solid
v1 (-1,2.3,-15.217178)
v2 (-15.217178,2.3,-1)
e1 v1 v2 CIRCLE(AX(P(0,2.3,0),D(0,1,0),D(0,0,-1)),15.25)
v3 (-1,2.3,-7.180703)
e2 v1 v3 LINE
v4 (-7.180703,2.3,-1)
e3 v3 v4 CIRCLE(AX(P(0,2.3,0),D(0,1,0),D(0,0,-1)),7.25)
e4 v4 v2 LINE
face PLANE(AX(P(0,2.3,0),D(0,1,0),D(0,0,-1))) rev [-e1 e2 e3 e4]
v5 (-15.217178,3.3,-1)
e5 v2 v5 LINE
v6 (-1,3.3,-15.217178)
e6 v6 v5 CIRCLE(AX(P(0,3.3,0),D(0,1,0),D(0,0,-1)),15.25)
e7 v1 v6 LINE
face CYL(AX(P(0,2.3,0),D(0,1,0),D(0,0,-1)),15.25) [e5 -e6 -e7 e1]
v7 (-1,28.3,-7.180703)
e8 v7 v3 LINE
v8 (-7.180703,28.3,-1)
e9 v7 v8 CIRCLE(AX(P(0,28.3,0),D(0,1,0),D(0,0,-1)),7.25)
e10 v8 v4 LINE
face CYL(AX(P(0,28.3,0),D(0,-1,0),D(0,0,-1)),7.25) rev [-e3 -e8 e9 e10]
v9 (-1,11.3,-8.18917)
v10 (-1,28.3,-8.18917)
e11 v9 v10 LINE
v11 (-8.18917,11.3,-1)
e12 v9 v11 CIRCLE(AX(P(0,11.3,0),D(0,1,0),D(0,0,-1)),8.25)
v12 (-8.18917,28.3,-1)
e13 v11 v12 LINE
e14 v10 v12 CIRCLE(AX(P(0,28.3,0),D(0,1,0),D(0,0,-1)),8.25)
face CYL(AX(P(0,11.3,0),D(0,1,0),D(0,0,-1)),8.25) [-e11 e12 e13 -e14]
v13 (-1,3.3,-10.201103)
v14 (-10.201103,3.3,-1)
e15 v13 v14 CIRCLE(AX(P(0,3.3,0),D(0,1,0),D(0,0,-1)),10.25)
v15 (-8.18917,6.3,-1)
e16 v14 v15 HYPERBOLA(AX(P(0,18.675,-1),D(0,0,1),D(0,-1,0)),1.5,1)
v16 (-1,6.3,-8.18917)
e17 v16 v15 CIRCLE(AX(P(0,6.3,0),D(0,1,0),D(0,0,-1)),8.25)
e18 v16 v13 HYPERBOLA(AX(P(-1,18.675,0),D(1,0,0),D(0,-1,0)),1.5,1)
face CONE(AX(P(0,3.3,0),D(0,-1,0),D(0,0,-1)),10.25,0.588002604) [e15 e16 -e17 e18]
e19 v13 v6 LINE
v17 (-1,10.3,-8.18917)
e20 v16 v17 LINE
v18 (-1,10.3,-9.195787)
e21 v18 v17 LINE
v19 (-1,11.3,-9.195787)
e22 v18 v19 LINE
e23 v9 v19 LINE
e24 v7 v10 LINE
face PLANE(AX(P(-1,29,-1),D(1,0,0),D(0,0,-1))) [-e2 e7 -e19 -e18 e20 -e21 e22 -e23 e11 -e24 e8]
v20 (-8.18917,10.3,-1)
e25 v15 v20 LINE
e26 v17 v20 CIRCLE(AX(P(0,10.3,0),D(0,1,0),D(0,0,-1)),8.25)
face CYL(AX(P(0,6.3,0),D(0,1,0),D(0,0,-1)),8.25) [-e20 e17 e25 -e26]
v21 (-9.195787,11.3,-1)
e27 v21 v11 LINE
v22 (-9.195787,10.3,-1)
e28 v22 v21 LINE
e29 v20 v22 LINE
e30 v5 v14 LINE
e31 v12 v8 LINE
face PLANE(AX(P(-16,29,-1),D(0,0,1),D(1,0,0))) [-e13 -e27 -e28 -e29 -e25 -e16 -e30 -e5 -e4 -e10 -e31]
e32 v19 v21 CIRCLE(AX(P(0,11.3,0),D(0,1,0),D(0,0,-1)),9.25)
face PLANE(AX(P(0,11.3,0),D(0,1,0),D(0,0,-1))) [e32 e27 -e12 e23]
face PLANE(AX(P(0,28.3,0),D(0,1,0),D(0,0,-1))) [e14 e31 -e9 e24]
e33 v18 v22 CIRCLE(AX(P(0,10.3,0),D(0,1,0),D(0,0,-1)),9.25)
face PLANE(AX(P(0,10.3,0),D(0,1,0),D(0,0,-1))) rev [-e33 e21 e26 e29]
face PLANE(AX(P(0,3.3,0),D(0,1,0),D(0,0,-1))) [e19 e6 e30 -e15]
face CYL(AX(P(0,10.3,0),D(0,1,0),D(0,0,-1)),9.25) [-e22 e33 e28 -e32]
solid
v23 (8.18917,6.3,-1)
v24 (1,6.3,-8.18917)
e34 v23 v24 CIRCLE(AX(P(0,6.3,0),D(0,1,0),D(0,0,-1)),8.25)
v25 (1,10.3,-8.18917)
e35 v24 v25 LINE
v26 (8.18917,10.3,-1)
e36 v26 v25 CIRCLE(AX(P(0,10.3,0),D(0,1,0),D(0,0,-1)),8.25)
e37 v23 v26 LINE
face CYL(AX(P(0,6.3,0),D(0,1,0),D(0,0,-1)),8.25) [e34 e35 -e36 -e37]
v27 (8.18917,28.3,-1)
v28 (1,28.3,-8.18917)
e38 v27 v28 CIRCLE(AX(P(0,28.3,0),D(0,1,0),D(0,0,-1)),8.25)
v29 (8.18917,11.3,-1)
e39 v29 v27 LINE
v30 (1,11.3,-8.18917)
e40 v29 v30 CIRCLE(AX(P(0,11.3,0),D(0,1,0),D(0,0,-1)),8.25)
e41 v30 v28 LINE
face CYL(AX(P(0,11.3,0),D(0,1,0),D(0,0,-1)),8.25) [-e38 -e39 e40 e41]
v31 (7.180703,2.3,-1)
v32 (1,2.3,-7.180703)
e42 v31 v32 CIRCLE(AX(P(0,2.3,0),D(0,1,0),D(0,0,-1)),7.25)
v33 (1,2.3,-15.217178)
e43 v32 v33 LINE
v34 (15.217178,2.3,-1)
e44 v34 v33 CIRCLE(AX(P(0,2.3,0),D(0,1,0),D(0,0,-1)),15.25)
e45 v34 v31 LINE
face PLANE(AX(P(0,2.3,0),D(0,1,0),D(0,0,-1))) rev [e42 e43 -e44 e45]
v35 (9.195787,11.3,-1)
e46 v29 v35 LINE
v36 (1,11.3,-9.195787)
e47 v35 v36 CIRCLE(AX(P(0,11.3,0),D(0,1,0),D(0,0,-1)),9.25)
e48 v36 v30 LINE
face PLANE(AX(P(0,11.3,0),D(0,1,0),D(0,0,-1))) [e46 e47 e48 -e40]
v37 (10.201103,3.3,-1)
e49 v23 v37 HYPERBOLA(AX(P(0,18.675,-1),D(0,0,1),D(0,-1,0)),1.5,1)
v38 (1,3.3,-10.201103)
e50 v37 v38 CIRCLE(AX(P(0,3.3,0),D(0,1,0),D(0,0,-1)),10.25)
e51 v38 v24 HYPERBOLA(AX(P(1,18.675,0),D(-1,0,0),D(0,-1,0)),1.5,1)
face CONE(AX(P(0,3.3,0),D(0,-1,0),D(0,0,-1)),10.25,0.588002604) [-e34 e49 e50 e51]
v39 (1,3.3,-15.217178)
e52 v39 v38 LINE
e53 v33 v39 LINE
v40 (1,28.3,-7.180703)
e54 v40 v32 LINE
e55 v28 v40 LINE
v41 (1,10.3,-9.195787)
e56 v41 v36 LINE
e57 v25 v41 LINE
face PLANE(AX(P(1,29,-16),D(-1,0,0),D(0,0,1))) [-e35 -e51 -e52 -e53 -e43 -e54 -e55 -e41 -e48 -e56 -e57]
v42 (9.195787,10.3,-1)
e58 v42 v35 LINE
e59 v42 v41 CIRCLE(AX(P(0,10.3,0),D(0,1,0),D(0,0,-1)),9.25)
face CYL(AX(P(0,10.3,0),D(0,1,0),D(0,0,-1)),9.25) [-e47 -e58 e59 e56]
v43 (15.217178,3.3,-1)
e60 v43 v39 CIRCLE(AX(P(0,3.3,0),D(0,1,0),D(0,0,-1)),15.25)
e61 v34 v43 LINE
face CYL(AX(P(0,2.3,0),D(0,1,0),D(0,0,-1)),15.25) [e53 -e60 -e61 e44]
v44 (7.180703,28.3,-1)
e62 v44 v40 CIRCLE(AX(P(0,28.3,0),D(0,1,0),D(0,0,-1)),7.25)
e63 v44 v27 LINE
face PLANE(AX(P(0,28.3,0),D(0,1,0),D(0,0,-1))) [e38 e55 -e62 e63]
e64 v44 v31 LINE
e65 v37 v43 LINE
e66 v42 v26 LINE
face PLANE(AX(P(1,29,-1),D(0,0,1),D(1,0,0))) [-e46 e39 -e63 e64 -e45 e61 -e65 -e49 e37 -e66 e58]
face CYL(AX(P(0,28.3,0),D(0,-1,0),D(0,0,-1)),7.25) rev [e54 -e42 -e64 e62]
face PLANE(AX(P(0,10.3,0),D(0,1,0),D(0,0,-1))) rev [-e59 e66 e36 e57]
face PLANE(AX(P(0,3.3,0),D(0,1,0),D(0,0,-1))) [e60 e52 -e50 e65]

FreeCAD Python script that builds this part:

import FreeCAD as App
import Part
import Sketcher

V = App.Vector
Q = App.Units.Quantity

doc = App.newDocument("Part")
params = doc.addObject("Spreadsheet::Sheet", "Params")
for row, (alias, value) in enumerate([
    ("sketch1_width", "32 mm"),
    ("sketch1_width2", "15 mm"),
    ("sketch1_height", "17 mm"),
    ("pad1_length", "30 mm"),
    ("sketch2_width", "26 mm"),
    ("sketch2_width2", "17 mm"),
    ("sketch2_width3", "1 mm"),
    ("sketch2_width4", "4 mm"),
    ("sketch2_height", "5 mm"),
    ("revolution_angle", "360 deg"),
], start=1):
    params.set(f"A{row}", alias)
    params.set(f"B{row}", "=" + value)
    params.setAlias(f"B{row}", alias)

body = doc.addObject("PartDesign::Body", "Body")

# Sketch on XZ plane
sketch1 = body.newObject("Sketcher::SketchObject", "Sketch")
sketch1.AttachmentSupport = (doc.getObject("XZ_Plane"), [""])
sketch1.MapMode = "FlatFace"
sketch1.AttachmentOffset = App.Placement(V(0, 0, -29), App.Rotation())
sketch1.addGeometry(Part.LineSegment(V(-16, 16, 0), V(16, 16, 0)), False)
sketch1.addGeometry(Part.LineSegment(V(16, 16, 0), V(16, -1, 0)), False)
sketch1.addGeometry(Part.LineSegment(V(16, -1, 0), V(1, -1, 0)), False)
sketch1.addGeometry(Part.LineSegment(V(1, -1, 0), V(1, -16, 0)), False)
sketch1.addGeometry(Part.LineSegment(V(1, -16, 0), V(-1, -16, 0)), False)
sketch1.addGeometry(Part.LineSegment(V(-1, -16, 0), V(-1, -1, 0)), False)
sketch1.addGeometry(Part.LineSegment(V(-1, -1, 0), V(-16, -1, 0)), False)
sketch1.addGeometry(Part.LineSegment(V(-16, -1, 0), V(-16, 16, 0)), False)
sketch1.addConstraint(Sketcher.Constraint("Coincident", 0, 2, 1, 1))
sketch1.addConstraint(Sketcher.Constraint("Coincident", 1, 2, 2, 1))
sketch1.addConstraint(Sketcher.Constraint("Coincident", 2, 2, 3, 1))
sketch1.addConstraint(Sketcher.Constraint("Coincident", 3, 2, 4, 1))
sketch1.addConstraint(Sketcher.Constraint("Coincident", 4, 2, 5, 1))
sketch1.addConstraint(Sketcher.Constraint("Coincident", 5, 2, 6, 1))
sketch1.addConstraint(Sketcher.Constraint("Coincident", 6, 2, 7, 1))
sketch1.addConstraint(Sketcher.Constraint("Coincident", 7, 2, 0, 1))
sketch1.addConstraint(Sketcher.Constraint("Horizontal", 0))
sketch1.addConstraint(Sketcher.Constraint("Vertical", 1))
sketch1.addConstraint(Sketcher.Constraint("Horizontal", 2))
sketch1.addConstraint(Sketcher.Constraint("Vertical", 3))
sketch1.addConstraint(Sketcher.Constraint("Horizontal", 4))
sketch1.addConstraint(Sketcher.Constraint("Vertical", 5))
sketch1.addConstraint(Sketcher.Constraint("Horizontal", 6))
sketch1.addConstraint(Sketcher.Constraint("Vertical", 7))
sketch1.addConstraint(Sketcher.Constraint("Symmetric", 2, 2, 5, 2, -2))
sketch1.addConstraint(Sketcher.Constraint("Equal", 2, 6))
sketch1.addConstraint(Sketcher.Constraint("Equal", 6, 3))
sketch1.addConstraint(Sketcher.Constraint("DistanceX", 0, 1, 0, 2, Q("32 mm")))
sketch1.addConstraint(Sketcher.Constraint("DistanceX", 2, 2, 2, 1, Q("15 mm")))
sketch1.addConstraint(Sketcher.Constraint("DistanceY", 1, 2, 1, 1, Q("17 mm")))
sketch1.addConstraint(Sketcher.Constraint("DistanceY", -1, 1, 0, 2, Q("16 mm")))
sketch1.setExpression("Constraints[19]", "Params.sketch1_width")
sketch1.setExpression("Constraints[20]", "Params.sketch1_width2")
sketch1.setExpression("Constraints[21]", "Params.sketch1_height")
pad1 = body.newObject("PartDesign::Pad", "Pad")
pad1.Profile = sketch1
pad1.setExpression("Length", "Params.pad1_length")
body2 = doc.addObject("PartDesign::Body", "Body001")
body2.AllowCompound = True

# Sketch on YZ plane
sketch2 = body2.newObject("Sketcher::SketchObject", "Sketch001")
sketch2.AttachmentSupport = (doc.getObject("YZ_Plane001"), [""])
sketch2.MapMode = "FlatFace"
sketch2.addGeometry(Part.LineSegment(V(2.3, -7.2, 0), V(28.3, -7.2, 0)), False)
sketch2.addGeometry(Part.LineSegment(V(28.3, -7.2, 0), V(28.3, -8.2, 0)), False)
sketch2.addGeometry(Part.LineSegment(V(28.3, -8.2, 0), V(11.3, -8.2, 0)), False)
sketch2.addGeometry(Part.LineSegment(V(11.3, -8.2, 0), V(11.3, -9.2, 0)), False)
sketch2.addGeometry(Part.LineSegment(V(11.3, -9.2, 0), V(10.3, -9.2, 0)), False)
sketch2.addGeometry(Part.LineSegment(V(10.3, -9.2, 0), V(10.3, -8.2, 0)), False)
sketch2.addGeometry(Part.LineSegment(V(10.3, -8.2, 0), V(6.3, -8.2, 0)), False)
sketch2.addGeometry(Part.LineSegment(V(6.3, -8.2, 0), V(3.3, -10.2, 0)), False)
sketch2.addGeometry(Part.LineSegment(V(3.3, -10.2, 0), V(3.3, -15.2, 0)), False)
sketch2.addGeometry(Part.LineSegment(V(3.3, -15.2, 0), V(2.3, -15.2, 0)), False)
sketch2.addGeometry(Part.LineSegment(V(2.3, -15.2, 0), V(2.3, -7.2, 0)), False)
sketch2.addConstraint(Sketcher.Constraint("Coincident", 0, 2, 1, 1))
sketch2.addConstraint(Sketcher.Constraint("Coincident", 1, 2, 2, 1))
sketch2.addConstraint(Sketcher.Constraint("Coincident", 2, 2, 3, 1))
sketch2.addConstraint(Sketcher.Constraint("Coincident", 3, 2, 4, 1))
sketch2.addConstraint(Sketcher.Constraint("Coincident", 4, 2, 5, 1))
sketch2.addConstraint(Sketcher.Constraint("Coincident", 5, 2, 6, 1))
sketch2.addConstraint(Sketcher.Constraint("Coincident", 6, 2, 7, 1))
sketch2.addConstraint(Sketcher.Constraint("Coincident", 7, 2, 8, 1))
sketch2.addConstraint(Sketcher.Constraint("Coincident", 8, 2, 9, 1))
sketch2.addConstraint(Sketcher.Constraint("Coincident", 9, 2, 10, 1))
sketch2.addConstraint(Sketcher.Constraint("Coincident", 10, 2, 0, 1))
sketch2.addConstraint(Sketcher.Constraint("Horizontal", 0))
sketch2.addConstraint(Sketcher.Constraint("Vertical", 1))
sketch2.addConstraint(Sketcher.Constraint("Horizontal", 2))
sketch2.addConstraint(Sketcher.Constraint("Vertical", 3))
sketch2.addConstraint(Sketcher.Constraint("Horizontal", 4))
sketch2.addConstraint(Sketcher.Constraint("Vertical", 5))
sketch2.addConstraint(Sketcher.Constraint("Horizontal", 6))
sketch2.addConstraint(Sketcher.Constraint("Vertical", 8))
sketch2.addConstraint(Sketcher.Constraint("Horizontal", 9))
sketch2.addConstraint(Sketcher.Constraint("Vertical", 10))
sketch2.addConstraint(Sketcher.Constraint("Horizontal", 2, 2, 5, 2))
sketch2.addConstraint(Sketcher.Constraint("Equal", 4, 9))
sketch2.addConstraint(Sketcher.Constraint("Equal", 9, 1))
sketch2.addConstraint(Sketcher.Constraint("Equal", 1, 3))
sketch2.addConstraint(Sketcher.Constraint("DistanceX", 0, 1, 0, 2, Q("26 mm")))
sketch2.addConstraint(Sketcher.Constraint("DistanceX", 2, 2, 2, 1, Q("17 mm")))
sketch2.addConstraint(Sketcher.Constraint("DistanceX", 4, 2, 4, 1, Q("1 mm")))
sketch2.addConstraint(Sketcher.Constraint("DistanceX", 6, 2, 6, 1, Q("4 mm")))
sketch2.addConstraint(Sketcher.Constraint("DistanceY", 8, 2, 8, 1, Q("5 mm")))
sketch2.addConstraint(Sketcher.Constraint("DistanceY", 10, 1, 10, 2, Q("8 mm")))
sketch2.addConstraint(Sketcher.Constraint("DistanceX", -1, 1, 0, 2, Q("28.3 mm")))
sketch2.addConstraint(Sketcher.Constraint("DistanceY", 0, 2, -1, 1, Q("7.25 mm")))
sketch2.setExpression("Constraints[25]", "Params.sketch2_width")
sketch2.setExpression("Constraints[26]", "Params.sketch2_width2")
sketch2.setExpression("Constraints[27]", "Params.sketch2_width3")
sketch2.setExpression("Constraints[28]", "Params.sketch2_width4")
sketch2.setExpression("Constraints[29]", "Params.sketch2_height")
revolution = body2.newObject("PartDesign::Revolution", "Revolution")
revolution.Profile = sketch2
revolution.ReferenceAxis = (sketch2, ["H_Axis"])
revolution.setExpression("Angle", "Params.revolution_angle")
doc.recompute()

boolean = body2.newObject("PartDesign::Boolean", "Boolean")
boolean.Type = "Cut"
boolean.addObjects([body])

doc.recompute()
